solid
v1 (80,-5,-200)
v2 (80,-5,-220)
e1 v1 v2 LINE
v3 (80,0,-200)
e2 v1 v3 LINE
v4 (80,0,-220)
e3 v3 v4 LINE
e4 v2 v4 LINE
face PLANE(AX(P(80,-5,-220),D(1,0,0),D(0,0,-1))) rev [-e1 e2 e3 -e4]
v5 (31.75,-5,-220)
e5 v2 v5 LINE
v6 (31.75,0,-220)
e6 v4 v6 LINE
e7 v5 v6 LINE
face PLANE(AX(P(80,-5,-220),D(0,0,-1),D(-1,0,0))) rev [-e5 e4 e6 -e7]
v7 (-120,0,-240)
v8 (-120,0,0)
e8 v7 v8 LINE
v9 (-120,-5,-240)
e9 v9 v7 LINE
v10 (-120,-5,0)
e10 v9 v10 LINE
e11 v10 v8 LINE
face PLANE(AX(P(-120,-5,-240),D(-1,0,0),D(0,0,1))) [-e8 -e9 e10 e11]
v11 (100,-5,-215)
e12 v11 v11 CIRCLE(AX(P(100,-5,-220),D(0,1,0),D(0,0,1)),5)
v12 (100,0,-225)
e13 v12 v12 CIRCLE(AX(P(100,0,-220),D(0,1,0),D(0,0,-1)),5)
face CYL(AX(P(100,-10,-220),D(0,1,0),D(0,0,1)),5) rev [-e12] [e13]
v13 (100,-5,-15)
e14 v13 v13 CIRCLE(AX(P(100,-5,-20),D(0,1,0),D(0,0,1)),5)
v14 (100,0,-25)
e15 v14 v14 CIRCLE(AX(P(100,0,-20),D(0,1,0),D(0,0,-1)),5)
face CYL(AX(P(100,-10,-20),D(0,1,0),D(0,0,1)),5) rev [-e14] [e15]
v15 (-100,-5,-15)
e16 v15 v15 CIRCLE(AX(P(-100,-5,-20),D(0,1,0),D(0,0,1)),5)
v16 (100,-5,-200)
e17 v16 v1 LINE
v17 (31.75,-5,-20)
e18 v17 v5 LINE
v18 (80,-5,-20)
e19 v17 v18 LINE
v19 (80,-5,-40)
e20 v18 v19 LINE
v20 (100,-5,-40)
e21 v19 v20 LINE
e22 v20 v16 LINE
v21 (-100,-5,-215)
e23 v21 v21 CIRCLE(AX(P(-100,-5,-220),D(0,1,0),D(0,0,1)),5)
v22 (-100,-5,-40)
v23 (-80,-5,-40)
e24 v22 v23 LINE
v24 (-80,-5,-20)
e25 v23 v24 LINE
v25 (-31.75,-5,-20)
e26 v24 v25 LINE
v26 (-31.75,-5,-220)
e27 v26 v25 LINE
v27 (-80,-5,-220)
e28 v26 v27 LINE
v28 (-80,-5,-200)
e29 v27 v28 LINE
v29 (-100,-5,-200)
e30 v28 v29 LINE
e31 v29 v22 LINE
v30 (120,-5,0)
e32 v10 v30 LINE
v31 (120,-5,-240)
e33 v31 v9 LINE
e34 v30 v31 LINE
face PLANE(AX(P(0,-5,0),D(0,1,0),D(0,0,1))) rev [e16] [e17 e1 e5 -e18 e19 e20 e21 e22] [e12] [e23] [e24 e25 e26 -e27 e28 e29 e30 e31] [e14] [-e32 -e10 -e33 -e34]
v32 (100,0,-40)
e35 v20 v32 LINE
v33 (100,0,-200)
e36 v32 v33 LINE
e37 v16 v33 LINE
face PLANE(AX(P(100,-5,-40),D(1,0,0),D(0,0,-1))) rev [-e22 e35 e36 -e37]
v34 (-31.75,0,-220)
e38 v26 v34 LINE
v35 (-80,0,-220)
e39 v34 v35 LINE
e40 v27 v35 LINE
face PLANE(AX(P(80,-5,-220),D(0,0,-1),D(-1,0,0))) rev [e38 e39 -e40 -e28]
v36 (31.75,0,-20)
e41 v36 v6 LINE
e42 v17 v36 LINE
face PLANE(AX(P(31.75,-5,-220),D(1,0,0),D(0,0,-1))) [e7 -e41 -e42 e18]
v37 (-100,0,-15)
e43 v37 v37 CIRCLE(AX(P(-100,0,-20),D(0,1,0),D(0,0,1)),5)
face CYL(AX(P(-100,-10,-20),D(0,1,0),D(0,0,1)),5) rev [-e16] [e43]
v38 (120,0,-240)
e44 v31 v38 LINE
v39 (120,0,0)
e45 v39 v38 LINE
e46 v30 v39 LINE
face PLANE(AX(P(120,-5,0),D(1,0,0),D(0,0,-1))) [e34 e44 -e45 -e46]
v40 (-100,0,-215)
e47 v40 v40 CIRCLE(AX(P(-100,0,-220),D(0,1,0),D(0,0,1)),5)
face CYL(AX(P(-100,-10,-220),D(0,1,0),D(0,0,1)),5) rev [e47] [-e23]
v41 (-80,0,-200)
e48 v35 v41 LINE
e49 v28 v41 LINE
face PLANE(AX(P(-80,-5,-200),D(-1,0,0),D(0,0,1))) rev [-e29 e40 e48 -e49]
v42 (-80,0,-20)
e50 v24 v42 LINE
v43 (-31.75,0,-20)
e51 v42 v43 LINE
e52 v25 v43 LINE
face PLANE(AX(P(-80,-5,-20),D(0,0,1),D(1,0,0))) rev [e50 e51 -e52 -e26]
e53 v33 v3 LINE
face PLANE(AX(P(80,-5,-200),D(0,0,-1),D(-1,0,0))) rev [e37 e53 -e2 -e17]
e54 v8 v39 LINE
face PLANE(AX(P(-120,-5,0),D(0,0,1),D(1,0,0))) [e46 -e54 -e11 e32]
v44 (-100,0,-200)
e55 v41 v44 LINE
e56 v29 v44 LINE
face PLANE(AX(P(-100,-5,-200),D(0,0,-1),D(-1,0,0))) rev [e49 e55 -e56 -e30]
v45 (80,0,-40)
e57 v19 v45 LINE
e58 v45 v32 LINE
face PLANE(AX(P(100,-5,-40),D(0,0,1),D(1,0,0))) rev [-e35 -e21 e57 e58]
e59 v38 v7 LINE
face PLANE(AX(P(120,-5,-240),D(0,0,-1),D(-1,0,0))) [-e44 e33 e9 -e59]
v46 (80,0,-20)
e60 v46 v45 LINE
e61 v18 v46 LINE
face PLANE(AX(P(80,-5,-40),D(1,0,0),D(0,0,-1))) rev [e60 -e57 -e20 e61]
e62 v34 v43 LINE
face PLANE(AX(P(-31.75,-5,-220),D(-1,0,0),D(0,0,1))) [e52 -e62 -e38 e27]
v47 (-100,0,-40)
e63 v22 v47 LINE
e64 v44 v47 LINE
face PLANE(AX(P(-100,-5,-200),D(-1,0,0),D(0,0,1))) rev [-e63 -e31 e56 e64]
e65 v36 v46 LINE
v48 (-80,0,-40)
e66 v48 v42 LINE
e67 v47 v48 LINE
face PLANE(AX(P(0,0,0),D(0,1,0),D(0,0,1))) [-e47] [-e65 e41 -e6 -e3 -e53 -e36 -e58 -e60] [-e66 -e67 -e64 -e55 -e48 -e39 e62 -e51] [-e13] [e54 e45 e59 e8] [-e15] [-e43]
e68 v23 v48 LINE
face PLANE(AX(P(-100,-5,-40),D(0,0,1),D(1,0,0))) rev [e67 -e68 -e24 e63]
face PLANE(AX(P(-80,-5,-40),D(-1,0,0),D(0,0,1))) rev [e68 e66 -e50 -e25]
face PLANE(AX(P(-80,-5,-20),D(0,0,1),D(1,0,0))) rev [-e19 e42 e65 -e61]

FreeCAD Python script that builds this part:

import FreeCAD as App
import Part
import Sketcher
from FreeCAD import Vector
Q = App.Units.Quantity


def add_polygon(sketch, points):
    """Adds a closed chain of lines whose ends are joined by coincident constraints."""
    first, n = sketch.GeometryCount, len(points)
    for a, b in zip(points, points[1:] + points[:1]):
        sketch.addGeometry(Part.LineSegment(App.Vector(*a, 0), App.Vector(*b, 0)), False)
    for i in range(n):
        sketch.addConstraint(Sketcher.Constraint("Coincident", first + i, 2, first + (i + 1) % n, 1))

doc = App.newDocument("Part")
body = doc.addObject("PartDesign::Body", "Body")

# Sketch on XZ plane
sketch1 = body.newObject("Sketcher::SketchObject", "Sketch")
sketch1.AttachmentSupport = (doc.getObject("XZ_Plane"), [""])
sketch1.MapMode = "FlatFace"
add_polygon(sketch1, [(-120, -240), (-120, 0), (120, 0), (120, -240)])  # lines 0-3
add_polygon(sketch1, [(-100, -40), (-100, -200), (-80, -200), (-80, -220), (80, -220), (80, -200), (100, -200), (100, -40), (80, -40), (80, -20), (-80, -20), (-80, -40)])  # lines 4-15
sketch1.addConstraint(Sketcher.Constraint("Vertical", 0))
sketch1.addConstraint(Sketcher.Constraint("Horizontal", 1))
sketch1.addConstraint(Sketcher.Constraint("Vertical", 2))
sketch1.addConstraint(Sketcher.Constraint("Horizontal", 3))
sketch1.addConstraint(Sketcher.Constraint("Vertical", 4))
sketch1.addConstraint(Sketcher.Constraint("Horizontal", 5))
sketch1.addConstraint(Sketcher.Constraint("Vertical", 6))
sketch1.addConstraint(Sketcher.Constraint("Horizontal", 7))
sketch1.addConstraint(Sketcher.Constraint("Vertical", 8))
sketch1.addConstraint(Sketcher.Constraint("Horizontal", 9))
sketch1.addConstraint(Sketcher.Constraint("Vertical", 10))
sketch1.addConstraint(Sketcher.Constraint("Horizontal", 11))
sketch1.addConstraint(Sketcher.Constraint("Vertical", 12))
sketch1.addConstraint(Sketcher.Constraint("Horizontal", 13))
sketch1.addConstraint(Sketcher.Constraint("Vertical", 14))
sketch1.addConstraint(Sketcher.Constraint("Horizontal", 15))
sketch1.addConstraint(Sketcher.Constraint("Symmetric", 0, 2, 1, 2, -1, 1))
sketch1.addConstraint(Sketcher.Constraint("Symmetric", 5, 2, 8, 2, -2))
sketch1.addConstraint(Sketcher.Constraint("Symmetric", 11, 2, 14, 2, -2))
sketch1.addConstraint(Sketcher.Constraint("Vertical", 8, 2, 11, 2))
sketch1.addConstraint(Sketcher.Constraint("Equal", 5, 9))
sketch1.addConstraint(Sketcher.Constraint("Equal", 3, 0))
sketch1.addConstraint(Sketcher.Constraint("Equal", 13, 4))
sketch1.addConstraint(Sketcher.Constraint("Equal", 15, 6))
sketch1.addConstraint(Sketcher.Constraint("Equal", 8, 12))
sketch1.addConstraint(Sketcher.Constraint("DistanceX", 1, 1, 1, 2, Q("240 mm")))
sketch1.addConstraint(Sketcher.Constraint("DistanceX", 5, 1, 5, 2, Q("20 mm")))
sketch1.addConstraint(Sketcher.Constraint("DistanceX", 7, 1, 7, 2, Q("160 mm")))
sketch1.addConstraint(Sketcher.Constraint("DistanceY", 4, 2, -1, 1, Q("200 mm")))
pad1 = body.newObject("PartDesign::Pad", "Pad")
pad1.Profile = sketch1
pad1.Length = 5

# Sketch on XZ plane
sketch2 = body.newObject("Sketcher::SketchObject", "Sketch001")
sketch2.AttachmentSupport = (doc.getObject("XZ_Plane"), [""])
sketch2.MapMode = "FlatFace"
add_polygon(sketch2, [(-32, -220), (-32, -20), (32, -20), (32, -220)])  # lines 0-3
sketch2.addConstraint(Sketcher.Constraint("Vertical", 0))
sketch2.addConstraint(Sketcher.Constraint("Horizontal", 1))
sketch2.addConstraint(Sketcher.Constraint("Vertical", 2))
sketch2.addConstraint(Sketcher.Constraint("Horizontal", 3))
sketch2.addConstraint(Sketcher.Constraint("DistanceY", 0, 1, 0, 2, Q("200 mm")))
sketch2.addConstraint(Sketcher.Constraint("DistanceX", 1, 1, 1, 2, Q("63.5 mm")))
sketch2.addConstraint(Sketcher.Constraint("DistanceY", 0, 2, -1, 1, Q("20 mm")))
sketch2.addConstraint(Sketcher.Constraint("DistanceX", 0, 2, -1, 1, Q("31.75 mm")))
pad2 = body.newObject("PartDesign::Pad", "Pad001")
pad2.Profile = sketch2
pad2.Length = 5

# Sketch on XZ plane
sketch3 = body.newObject("Sketcher::SketchObject", "Sketch002")
sketch3.AttachmentSupport = (doc.getObject("XZ_Plane"), [""])
sketch3.MapMode = "FlatFace"
sketch3.addGeometry(Part.Circle(Vector(-100, -20, 0), Vector(0, 0, 1), 5), False)
sketch3.addGeometry(Part.Circle(Vector(100, -20, 0), Vector(0, 0, 1), 5), False)
sketch3.addGeometry(Part.Circle(Vector(-100, -220, 0), Vector(0, 0, 1), 5), False)
sketch3.addGeometry(Part.Circle(Vector(100, -220, 0), Vector(0, 0, 1), 5), False)
sketch3.addConstraint(Sketcher.Constraint("Equal", 0, 1))
sketch3.addConstraint(Sketcher.Constraint("Equal", 1, 2))
sketch3.addConstraint(Sketcher.Constraint("Equal", 2, 3))
sketch3.addConstraint(Sketcher.Constraint("Symmetric", 0, 3, 1, 3, -2))
sketch3.addConstraint(Sketcher.Constraint("Symmetric", 2, 3, 3, 3, -2))
sketch3.addConstraint(Sketcher.Constraint("Vertical", 0, 3, 2, 3))
sketch3.addConstraint(Sketcher.Constraint("Diameter", 0, Q("10 mm")))
sketch3.addConstraint(Sketcher.Constraint("DistanceX", 0, 3, -1, 1, Q("100 mm")))
sketch3.addConstraint(Sketcher.Constraint("DistanceY", 0, 3, -1, 1, Q("20 mm")))
sketch3.addConstraint(Sketcher.Constraint("DistanceY", 2, 3, -1, 1, Q("220 mm")))
pocket1 = body.newObject("PartDesign::Pocket", "Pocket")
pocket1.Profile = sketch3
pocket1.Length = 10
pocket1.Reversed = True

doc.recompute()
